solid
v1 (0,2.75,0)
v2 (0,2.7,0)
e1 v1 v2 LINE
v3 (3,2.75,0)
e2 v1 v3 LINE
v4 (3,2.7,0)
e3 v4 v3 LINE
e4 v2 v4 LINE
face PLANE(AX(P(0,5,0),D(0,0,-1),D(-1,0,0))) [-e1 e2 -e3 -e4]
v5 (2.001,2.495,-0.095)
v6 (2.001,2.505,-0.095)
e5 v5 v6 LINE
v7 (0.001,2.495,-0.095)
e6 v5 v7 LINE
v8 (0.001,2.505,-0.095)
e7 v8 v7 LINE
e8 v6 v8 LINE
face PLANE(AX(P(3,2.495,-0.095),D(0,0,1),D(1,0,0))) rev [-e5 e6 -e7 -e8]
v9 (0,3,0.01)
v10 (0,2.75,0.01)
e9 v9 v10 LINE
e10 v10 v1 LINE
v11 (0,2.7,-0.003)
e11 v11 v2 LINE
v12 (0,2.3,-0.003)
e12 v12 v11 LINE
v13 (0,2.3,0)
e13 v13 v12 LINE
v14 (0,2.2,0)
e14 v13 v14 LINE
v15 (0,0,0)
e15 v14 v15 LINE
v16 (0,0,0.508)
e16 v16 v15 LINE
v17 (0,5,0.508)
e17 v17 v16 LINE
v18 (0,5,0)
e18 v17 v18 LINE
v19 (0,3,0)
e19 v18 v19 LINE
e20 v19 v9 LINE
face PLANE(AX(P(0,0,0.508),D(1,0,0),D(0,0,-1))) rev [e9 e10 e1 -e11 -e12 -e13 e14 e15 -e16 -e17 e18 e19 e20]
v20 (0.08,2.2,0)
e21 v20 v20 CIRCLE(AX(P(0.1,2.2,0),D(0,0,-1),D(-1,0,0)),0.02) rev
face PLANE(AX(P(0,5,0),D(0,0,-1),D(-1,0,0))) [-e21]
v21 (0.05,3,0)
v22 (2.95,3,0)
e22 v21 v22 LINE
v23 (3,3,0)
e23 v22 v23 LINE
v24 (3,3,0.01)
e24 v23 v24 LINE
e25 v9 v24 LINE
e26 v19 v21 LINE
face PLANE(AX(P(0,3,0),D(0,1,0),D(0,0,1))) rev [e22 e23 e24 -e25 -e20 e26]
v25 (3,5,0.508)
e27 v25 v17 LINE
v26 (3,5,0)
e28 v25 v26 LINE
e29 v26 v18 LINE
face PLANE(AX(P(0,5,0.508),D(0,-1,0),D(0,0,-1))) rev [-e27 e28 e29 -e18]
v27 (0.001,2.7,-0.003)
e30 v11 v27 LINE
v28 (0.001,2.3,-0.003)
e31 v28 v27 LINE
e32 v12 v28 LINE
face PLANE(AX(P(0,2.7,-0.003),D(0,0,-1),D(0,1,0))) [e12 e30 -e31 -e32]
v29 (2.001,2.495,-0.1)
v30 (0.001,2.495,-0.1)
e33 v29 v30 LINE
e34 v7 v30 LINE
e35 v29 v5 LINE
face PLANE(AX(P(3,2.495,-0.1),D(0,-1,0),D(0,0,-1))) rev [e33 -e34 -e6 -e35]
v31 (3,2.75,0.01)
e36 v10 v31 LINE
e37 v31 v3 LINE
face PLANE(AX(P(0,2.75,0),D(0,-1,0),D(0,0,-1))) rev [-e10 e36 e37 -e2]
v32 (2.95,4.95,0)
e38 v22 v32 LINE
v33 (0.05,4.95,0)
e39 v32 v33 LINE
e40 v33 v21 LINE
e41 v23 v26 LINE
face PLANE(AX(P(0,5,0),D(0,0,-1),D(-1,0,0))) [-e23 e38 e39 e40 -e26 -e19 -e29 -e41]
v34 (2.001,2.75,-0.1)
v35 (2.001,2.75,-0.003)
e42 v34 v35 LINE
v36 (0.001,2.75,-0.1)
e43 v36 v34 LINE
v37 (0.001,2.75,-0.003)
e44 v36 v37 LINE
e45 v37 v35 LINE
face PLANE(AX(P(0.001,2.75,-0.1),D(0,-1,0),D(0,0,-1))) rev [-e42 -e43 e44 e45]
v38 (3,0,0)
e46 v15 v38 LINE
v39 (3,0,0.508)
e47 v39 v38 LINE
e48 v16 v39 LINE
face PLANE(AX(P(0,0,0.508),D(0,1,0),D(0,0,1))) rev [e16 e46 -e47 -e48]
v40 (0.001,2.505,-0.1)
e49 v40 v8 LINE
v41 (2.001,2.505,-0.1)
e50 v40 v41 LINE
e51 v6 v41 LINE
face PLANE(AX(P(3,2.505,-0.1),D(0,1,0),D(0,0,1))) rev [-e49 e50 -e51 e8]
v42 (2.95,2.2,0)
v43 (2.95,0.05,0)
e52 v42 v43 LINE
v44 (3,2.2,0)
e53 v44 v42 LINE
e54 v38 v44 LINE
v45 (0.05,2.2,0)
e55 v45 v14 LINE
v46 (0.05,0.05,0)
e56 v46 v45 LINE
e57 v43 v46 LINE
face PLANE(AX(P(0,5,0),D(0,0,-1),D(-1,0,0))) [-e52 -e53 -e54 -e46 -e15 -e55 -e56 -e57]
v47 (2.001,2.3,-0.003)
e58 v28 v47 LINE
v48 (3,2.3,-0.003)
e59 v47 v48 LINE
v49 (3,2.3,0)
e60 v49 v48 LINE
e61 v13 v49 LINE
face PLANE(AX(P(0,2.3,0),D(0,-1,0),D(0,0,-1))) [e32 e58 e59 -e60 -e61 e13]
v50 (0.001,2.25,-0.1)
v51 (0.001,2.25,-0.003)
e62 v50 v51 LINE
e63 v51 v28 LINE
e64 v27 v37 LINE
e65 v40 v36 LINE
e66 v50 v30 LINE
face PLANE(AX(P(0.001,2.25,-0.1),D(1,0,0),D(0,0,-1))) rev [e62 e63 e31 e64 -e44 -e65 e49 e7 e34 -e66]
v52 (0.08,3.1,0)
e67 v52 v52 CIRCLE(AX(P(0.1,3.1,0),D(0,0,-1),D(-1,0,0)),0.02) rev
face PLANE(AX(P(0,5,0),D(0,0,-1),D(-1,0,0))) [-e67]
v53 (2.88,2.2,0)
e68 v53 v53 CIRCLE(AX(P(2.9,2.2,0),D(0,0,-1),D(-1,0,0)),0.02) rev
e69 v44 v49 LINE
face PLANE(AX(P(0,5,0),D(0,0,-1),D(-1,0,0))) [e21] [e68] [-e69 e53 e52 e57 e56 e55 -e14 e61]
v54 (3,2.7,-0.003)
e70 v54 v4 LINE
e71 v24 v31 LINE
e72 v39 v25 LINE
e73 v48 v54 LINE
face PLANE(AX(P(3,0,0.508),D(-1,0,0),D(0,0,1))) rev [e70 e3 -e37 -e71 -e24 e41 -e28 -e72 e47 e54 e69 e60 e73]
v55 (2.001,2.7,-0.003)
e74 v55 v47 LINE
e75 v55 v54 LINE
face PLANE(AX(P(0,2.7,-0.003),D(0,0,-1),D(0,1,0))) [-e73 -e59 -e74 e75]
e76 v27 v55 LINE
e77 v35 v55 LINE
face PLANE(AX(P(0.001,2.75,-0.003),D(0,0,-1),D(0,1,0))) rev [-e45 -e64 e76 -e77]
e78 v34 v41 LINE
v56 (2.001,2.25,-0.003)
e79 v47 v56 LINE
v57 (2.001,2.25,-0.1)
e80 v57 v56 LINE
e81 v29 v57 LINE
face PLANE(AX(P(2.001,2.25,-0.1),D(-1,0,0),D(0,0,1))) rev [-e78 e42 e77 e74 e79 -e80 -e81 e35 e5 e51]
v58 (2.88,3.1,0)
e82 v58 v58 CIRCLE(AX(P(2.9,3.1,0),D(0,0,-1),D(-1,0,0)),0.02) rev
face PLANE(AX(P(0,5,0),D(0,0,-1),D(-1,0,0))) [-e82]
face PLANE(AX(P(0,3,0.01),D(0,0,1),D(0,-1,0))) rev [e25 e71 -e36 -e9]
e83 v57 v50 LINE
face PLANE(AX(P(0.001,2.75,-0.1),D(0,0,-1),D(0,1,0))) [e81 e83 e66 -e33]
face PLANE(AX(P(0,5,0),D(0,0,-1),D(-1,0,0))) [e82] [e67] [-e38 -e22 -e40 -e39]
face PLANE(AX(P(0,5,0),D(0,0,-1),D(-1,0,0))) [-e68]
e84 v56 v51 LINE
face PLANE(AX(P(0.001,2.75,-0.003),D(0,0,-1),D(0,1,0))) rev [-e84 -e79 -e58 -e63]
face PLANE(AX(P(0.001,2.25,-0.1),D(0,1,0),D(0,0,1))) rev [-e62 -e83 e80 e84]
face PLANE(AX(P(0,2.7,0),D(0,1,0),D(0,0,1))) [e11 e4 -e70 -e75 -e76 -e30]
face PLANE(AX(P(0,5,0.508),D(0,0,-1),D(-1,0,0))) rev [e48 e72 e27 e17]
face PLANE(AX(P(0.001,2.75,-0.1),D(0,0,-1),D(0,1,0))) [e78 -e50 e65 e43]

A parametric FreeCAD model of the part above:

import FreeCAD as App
import Part
import Sketcher
from FreeCAD import Vector

doc = App.newDocument("Part")
body = doc.addObject("PartDesign::Body", "Body")

# Sketch on XY plane
sketch1 = body.newObject("Sketcher::SketchObject", "Sketch")
sketch1.AttachmentSupport = (doc.getObject("XY_Plane"), [""])
sketch1.MapMode = "FlatFace"
sketch1.addGeometry([
    Part.LineSegment(Vector(0, 5, 0), Vector(0, 0, 0)),
    Part.LineSegment(Vector(0, 0, 0), Vector(3, 0, 0)),
    Part.LineSegment(Vector(3, 0, 0), Vector(3, 5, 0)),
    Part.LineSegment(Vector(3, 5, 0), Vector(0, 5, 0)),
], False)
sketch1.addConstraint([
    Sketcher.Constraint("Coincident", 0, 2, 1, 1),
    Sketcher.Constraint("Coincident", 1, 2, 2, 1),
    Sketcher.Constraint("Coincident", 2, 2, 3, 1),
    Sketcher.Constraint("Coincident", 3, 2, 0, 1),
    Sketcher.Constraint("Vertical", 0),
    Sketcher.Constraint("Horizontal", 1),
    Sketcher.Constraint("Vertical", 2),
    Sketcher.Constraint("Horizontal", 3),
    Sketcher.Constraint("Coincident", 0, 2, -1, 1),
    Sketcher.Constraint("DistanceX", 1, 1, 1, 2, 3.0),
    Sketcher.Constraint("DistanceY", 0, 2, 0, 1, 5.0),
])
pad1 = body.newObject("PartDesign::Pad", "Pad")
pad1.Profile = sketch1
pad1.Length = 0.508

# Sketch on YZ plane
sketch2 = body.newObject("Sketcher::SketchObject", "Sketch001")
sketch2.AttachmentSupport = (doc.getObject("YZ_Plane"), [""])
sketch2.MapMode = "FlatFace"
sketch2.AttachmentOffset = App.Placement(Vector(0, 0, 3), App.Rotation())
sketch2.addGeometry([
    Part.LineSegment(Vector(3, 0.01, 0), Vector(2.75, 0.01, 0)),
    Part.LineSegment(Vector(2.75, 0.01, 0), Vector(2.75, 0, 0)),
    Part.LineSegment(Vector(2.75, 0, 0), Vector(3, 0, 0)),
    Part.LineSegment(Vector(3, 0, 0), Vector(3, 0.01, 0)),
], False)
sketch2.addConstraint([
    Sketcher.Constraint("Coincident", 0, 2, 1, 1),
    Sketcher.Constraint("Coincident", 1, 2, 2, 1),
    Sketcher.Constraint("Coincident", 2, 2, 3, 1),
    Sketcher.Constraint("Coincident", 3, 2, 0, 1),
    Sketcher.Constraint("Horizontal", 0),
    Sketcher.Constraint("Vertical", 1),
    Sketcher.Constraint("Horizontal", 2),
    Sketcher.Constraint("Vertical", 3),
    Sketcher.Constraint("PointOnObject", 1, 2, -1),
    Sketcher.Constraint("DistanceX", -1, 1, 2, 2, 3.0),
    Sketcher.Constraint("DistanceX", 0, 2, 0, 1, 0.25),
    Sketcher.Constraint("DistanceY", 1, 2, 1, 1, 0.01),
])
pocket1 = body.newObject("PartDesign::Pocket", "Pocket")
pocket1.Profile = sketch2
pocket1.Type = "ThroughAll"

# Sketch on YZ plane
sketch3 = body.newObject("Sketcher::SketchObject", "Sketch002")
sketch3.AttachmentSupport = (doc.getObject("YZ_Plane"), [""])
sketch3.MapMode = "FlatFace"
sketch3.AttachmentOffset = App.Placement(Vector(0, 0, 3), App.Rotation())
sketch3.addGeometry([
    Part.LineSegment(Vector(2.7, 0, 0), Vector(2.3, 0, 0)),
    Part.LineSegment(Vector(2.3, 0, 0), Vector(2.3, -0.003, 0)),
    Part.LineSegment(Vector(2.3, -0.003, 0), Vector(2.7, -0.003, 0)),
    Part.LineSegment(Vector(2.7, -0.003, 0), Vector(2.7, 0, 0)),
], False)
sketch3.addConstraint([
    Sketcher.Constraint("Coincident", 0, 2, 1, 1),
    Sketcher.Constraint("Coincident", 1, 2, 2, 1),
    Sketcher.Constraint("Coincident", 2, 2, 3, 1),
    Sketcher.Constraint("Coincident", 3, 2, 0, 1),
    Sketcher.Constraint("Horizontal", 0),
    Sketcher.Constraint("Vertical", 1),
    Sketcher.Constraint("Horizontal", 2),
    Sketcher.Constraint("Vertical", 3),
    Sketcher.Constraint("PointOnObject", 0, 2, -1),
    Sketcher.Constraint("DistanceX", 0, 2, 0, 1, 0.4),
    Sketcher.Constraint("DistanceX", -1, 1, 0, 2, 2.3),
    Sketcher.Constraint("DistanceY", 1, 2, 1, 1, 0.003),
])
pad2 = body.newObject("PartDesign::Pad", "Pad001")
pad2.Profile = sketch3
pad2.Length = 3
pad2.Reversed = True

# Sketch on XY plane
sketch4 = body.newObject("Sketcher::SketchObject", "Sketch003")
sketch4.AttachmentSupport = (doc.getObject("XY_Plane"), [""])
sketch4.MapMode = "FlatFace"
sketch4.AttachmentOffset = App.Placement(Vector(0, 0, -0.003), App.Rotation())
sketch4.addGeometry([
    Part.LineSegment(Vector(2.001, 2.75, 0), Vector(2.001, 2.25, 0)),
    Part.LineSegment(Vector(2.001, 2.25, 0), Vector(0.001, 2.25, 0)),
    Part.LineSegment(Vector(0.001, 2.25, 0), Vector(0.001, 2.75, 0)),
    Part.LineSegment(Vector(0.001, 2.75, 0), Vector(2.001, 2.75, 0)),
], False)
sketch4.addConstraint([
    Sketcher.Constraint("Coincident", 0, 2, 1, 1),
    Sketcher.Constraint("Coincident", 1, 2, 2, 1),
    Sketcher.Constraint("Coincident", 2, 2, 3, 1),
    Sketcher.Constraint("Coincident", 3, 2, 0, 1),
    Sketcher.Constraint("Vertical", 0),
    Sketcher.Constraint("Horizontal", 1),
    Sketcher.Constraint("Vertical", 2),
    Sketcher.Constraint("Horizontal", 3),
    Sketcher.Constraint("DistanceX", 1, 2, 1, 1, 2.0),
    Sketcher.Constraint("DistanceY", 0, 2, 0, 1, 0.5),
    Sketcher.Constraint("DistanceY", -1, 1, 0, 2, 2.25),
    Sketcher.Constraint("DistanceX", -1, 1, 0, 2, 2.001),
])
pad3 = body.newObject("PartDesign::Pad", "Pad002")
pad3.Profile = sketch4
pad3.Length = 0.097
pad3.Reversed = True

# Sketch on YZ plane
sketch5 = body.newObject("Sketcher::SketchObject", "Sketch004")
sketch5.AttachmentSupport = (doc.getObject("YZ_Plane"), [""])
sketch5.MapMode = "FlatFace"
sketch5.addGeometry([
    Part.LineSegment(Vector(2.505, -0.1, 0), Vector(2.495, -0.1, 0)),
    Part.LineSegment(Vector(2.495, -0.1, 0), Vector(2.495, -0.095, 0)),
    Part.LineSegment(Vector(2.495, -0.095, 0), Vector(2.505, -0.095, 0)),
    Part.LineSegment(Vector(2.505, -0.095, 0), Vector(2.505, -0.1, 0)),
], False)
sketch5.addConstraint([
    Sketcher.Constraint("Coincident", 0, 2, 1, 1),
    Sketcher.Constraint("Coincident", 1, 2, 2, 1),
    Sketcher.Constraint("Coincident", 2, 2, 3, 1),
    Sketcher.Constraint("Coincident", 3, 2, 0, 1),
    Sketcher.Constraint("Horizontal", 0),
    Sketcher.Constraint("Vertical", 1),
    Sketcher.Constraint("Horizontal", 2),
    Sketcher.Constraint("Vertical", 3),
    Sketcher.Constraint("DistanceX", 0, 2, 0, 1, 0.01),
    Sketcher.Constraint("DistanceY", 0, 2, -1, 1, 0.1),
    Sketcher.Constraint("DistanceY", 1, 1, 1, 2, 0.005),
    Sketcher.Constraint("DistanceX", -1, 1, 0, 2, 2.495),
])
pocket2 = body.newObject("PartDesign::Pocket", "Pocket001")
pocket2.Profile = sketch5
pocket2.Type = "ThroughAll"
pocket2.Reversed = True

doc.recompute()
